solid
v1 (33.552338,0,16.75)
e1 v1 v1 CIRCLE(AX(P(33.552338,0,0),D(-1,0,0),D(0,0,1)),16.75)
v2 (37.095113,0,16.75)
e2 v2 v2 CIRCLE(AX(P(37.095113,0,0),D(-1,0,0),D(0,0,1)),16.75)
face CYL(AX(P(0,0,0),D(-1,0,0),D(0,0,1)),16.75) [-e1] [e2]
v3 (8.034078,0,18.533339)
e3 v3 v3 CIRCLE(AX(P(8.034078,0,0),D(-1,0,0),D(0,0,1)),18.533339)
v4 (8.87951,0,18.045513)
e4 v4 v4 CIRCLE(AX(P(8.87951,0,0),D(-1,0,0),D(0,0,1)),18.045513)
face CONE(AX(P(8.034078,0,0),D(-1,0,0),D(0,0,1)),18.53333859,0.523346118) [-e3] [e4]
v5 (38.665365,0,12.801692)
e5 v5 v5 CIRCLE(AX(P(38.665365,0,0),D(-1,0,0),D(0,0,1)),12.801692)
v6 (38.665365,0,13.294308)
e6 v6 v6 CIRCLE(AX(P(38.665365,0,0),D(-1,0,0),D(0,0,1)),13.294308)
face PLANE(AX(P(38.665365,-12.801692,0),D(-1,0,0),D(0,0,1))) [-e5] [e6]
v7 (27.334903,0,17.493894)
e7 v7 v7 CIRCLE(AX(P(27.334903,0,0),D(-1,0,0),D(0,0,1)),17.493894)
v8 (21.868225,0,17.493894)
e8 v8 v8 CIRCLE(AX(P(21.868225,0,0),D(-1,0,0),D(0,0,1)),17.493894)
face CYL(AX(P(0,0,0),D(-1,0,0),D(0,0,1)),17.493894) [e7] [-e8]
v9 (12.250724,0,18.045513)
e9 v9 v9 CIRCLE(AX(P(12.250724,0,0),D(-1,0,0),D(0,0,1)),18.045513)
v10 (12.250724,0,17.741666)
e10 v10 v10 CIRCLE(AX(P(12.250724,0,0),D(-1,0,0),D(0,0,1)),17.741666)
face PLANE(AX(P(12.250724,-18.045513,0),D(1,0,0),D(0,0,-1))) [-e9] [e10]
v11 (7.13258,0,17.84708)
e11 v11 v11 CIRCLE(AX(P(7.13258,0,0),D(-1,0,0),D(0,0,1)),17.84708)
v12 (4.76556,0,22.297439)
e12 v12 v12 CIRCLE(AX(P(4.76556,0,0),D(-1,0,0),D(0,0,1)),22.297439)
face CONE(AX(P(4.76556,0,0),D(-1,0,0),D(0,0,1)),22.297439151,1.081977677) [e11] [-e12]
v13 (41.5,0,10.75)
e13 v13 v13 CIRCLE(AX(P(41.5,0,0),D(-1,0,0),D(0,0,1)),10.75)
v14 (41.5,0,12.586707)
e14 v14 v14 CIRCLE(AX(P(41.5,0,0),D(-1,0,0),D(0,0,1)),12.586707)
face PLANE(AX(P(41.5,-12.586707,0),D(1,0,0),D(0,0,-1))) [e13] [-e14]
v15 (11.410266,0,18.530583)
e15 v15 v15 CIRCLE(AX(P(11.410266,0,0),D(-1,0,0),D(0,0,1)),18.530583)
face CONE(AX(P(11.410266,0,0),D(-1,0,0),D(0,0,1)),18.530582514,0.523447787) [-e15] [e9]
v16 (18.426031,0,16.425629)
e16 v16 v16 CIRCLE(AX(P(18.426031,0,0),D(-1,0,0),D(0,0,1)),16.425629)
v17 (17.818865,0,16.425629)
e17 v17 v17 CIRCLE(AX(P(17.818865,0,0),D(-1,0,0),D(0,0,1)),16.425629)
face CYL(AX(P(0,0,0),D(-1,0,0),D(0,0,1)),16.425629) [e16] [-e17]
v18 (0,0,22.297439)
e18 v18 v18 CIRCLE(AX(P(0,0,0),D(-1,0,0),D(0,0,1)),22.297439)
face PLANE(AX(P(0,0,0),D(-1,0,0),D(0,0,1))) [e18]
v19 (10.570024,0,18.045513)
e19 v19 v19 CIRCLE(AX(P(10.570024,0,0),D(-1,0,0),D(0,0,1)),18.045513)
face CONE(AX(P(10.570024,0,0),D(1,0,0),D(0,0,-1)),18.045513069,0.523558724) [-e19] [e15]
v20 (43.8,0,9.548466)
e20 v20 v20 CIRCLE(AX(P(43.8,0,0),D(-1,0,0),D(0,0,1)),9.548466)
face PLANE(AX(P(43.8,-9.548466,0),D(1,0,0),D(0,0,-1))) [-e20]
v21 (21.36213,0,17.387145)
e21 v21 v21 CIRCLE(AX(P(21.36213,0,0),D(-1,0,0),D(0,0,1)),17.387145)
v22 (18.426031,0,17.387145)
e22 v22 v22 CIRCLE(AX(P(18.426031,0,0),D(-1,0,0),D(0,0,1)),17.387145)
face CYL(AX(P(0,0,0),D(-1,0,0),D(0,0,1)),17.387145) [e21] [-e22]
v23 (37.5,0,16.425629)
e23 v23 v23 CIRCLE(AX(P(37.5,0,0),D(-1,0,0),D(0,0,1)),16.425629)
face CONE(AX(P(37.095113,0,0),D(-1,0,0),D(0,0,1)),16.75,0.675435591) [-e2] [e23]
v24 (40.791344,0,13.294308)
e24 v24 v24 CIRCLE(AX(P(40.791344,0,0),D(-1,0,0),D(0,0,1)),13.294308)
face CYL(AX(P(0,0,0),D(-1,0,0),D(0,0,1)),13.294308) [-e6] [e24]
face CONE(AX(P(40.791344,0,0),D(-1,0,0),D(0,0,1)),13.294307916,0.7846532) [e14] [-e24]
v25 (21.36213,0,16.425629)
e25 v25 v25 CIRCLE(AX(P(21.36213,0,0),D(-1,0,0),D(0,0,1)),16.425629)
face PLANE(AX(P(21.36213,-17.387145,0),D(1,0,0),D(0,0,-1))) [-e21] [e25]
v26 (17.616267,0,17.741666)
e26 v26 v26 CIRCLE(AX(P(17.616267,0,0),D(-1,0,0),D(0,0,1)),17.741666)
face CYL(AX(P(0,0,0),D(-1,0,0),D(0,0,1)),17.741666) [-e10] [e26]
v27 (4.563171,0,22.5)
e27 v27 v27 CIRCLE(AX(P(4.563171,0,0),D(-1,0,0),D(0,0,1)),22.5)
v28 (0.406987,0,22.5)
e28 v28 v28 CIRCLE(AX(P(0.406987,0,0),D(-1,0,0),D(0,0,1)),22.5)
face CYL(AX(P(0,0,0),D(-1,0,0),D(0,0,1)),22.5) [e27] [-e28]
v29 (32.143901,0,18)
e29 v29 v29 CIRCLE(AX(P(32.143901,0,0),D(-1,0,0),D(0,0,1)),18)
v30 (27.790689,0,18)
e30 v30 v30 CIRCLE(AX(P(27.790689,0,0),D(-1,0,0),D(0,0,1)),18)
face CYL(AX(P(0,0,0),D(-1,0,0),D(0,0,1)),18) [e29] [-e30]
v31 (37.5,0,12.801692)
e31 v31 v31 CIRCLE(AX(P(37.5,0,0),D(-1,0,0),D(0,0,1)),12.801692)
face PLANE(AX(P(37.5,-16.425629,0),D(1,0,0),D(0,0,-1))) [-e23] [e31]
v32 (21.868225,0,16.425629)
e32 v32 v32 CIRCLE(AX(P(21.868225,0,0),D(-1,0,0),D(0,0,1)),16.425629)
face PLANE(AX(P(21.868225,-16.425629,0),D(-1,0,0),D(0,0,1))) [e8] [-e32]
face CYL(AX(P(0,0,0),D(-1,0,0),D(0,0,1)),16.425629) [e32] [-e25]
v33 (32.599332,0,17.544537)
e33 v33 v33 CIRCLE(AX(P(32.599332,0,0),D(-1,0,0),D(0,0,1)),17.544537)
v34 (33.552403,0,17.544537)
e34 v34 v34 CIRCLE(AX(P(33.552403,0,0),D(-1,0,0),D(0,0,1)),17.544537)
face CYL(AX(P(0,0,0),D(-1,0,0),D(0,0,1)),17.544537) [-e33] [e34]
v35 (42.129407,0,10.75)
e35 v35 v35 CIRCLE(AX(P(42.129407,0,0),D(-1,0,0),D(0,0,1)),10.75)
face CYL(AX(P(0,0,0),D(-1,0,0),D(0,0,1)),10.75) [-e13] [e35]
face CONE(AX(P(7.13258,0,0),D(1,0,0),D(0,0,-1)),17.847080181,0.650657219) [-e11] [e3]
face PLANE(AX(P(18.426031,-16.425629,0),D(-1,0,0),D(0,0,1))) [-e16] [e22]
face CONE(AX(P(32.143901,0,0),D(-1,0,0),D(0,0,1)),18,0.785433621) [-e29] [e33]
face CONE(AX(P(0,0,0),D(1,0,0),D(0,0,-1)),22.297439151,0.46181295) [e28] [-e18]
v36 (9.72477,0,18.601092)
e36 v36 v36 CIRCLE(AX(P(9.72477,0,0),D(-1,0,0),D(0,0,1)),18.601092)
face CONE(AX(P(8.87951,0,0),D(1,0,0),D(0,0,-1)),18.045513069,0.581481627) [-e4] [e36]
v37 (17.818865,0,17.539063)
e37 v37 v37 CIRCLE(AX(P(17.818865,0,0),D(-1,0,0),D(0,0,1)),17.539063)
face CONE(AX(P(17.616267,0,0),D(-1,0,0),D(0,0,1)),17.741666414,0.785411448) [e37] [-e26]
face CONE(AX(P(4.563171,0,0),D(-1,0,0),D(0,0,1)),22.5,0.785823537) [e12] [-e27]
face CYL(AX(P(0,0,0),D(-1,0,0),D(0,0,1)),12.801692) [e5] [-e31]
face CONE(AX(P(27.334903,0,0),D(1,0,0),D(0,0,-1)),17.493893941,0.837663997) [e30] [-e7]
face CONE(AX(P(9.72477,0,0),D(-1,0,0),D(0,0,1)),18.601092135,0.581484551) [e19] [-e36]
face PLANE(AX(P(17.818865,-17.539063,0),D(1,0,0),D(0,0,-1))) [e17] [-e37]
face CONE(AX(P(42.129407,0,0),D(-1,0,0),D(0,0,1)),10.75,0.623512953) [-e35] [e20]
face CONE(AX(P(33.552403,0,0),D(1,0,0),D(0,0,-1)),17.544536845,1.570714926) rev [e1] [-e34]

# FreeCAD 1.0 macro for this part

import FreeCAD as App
import Part
import Sketcher
from FreeCAD import Vector

doc = App.newDocument("Part")
body = doc.addObject("PartDesign::Body", "Body")

sketch1 = body.newObject("Sketcher::SketchObject", "Sketch")
sketch1.AttachmentSupport = (doc.getObject("XY_Plane"), [""])
sketch1.MapMode = "FlatFace"
sketch1.addGeometry(Part.LineSegment(Vector(0, 0, 0), Vector(0, -22.3, 0)), False)
sketch1.addGeometry(Part.LineSegment(Vector(0, -22.3, 0), Vector(0.41, -22.5, 0)), False)
sketch1.addGeometry(Part.LineSegment(Vector(0.41, -22.5, 0), Vector(4.56, -22.5, 0)), False)
sketch1.addGeometry(Part.LineSegment(Vector(4.56, -22.5, 0), Vector(4.77, -22.3, 0)), False)
sketch1.addGeometry(Part.LineSegment(Vector(4.77, -22.3, 0), Vector(7.13, -17.85, 0)), False)
sketch1.addGeometry(Part.LineSegment(Vector(7.13, -17.85, 0), Vector(8.03, -18.53, 0)), False)
sketch1.addGeometry(Part.LineSegment(Vector(8.03, -18.53, 0), Vector(8.88, -18.05, 0)), False)
sketch1.addGeometry(Part.LineSegment(Vector(8.88, -18.05, 0), Vector(9.72, -18.6, 0)), False)
sketch1.addGeometry(Part.LineSegment(Vector(9.72, -18.6, 0), Vector(10.57, -18.05, 0)), False)
sketch1.addGeometry(Part.LineSegment(Vector(10.57, -18.05, 0), Vector(11.41, -18.53, 0)), False)
sketch1.addGeometry(Part.LineSegment(Vector(11.41, -18.53, 0), Vector(12.25, -18.05, 0)), False)
sketch1.addGeometry(Part.LineSegment(Vector(12.25, -18.05, 0), Vector(12.25, -17.74, 0)), False)
sketch1.addGeometry(Part.LineSegment(Vector(12.25, -17.74, 0), Vector(17.62, -17.74, 0)), False)
sketch1.addGeometry(Part.LineSegment(Vector(17.62, -17.74, 0), Vector(17.82, -17.54, 0)), False)
sketch1.addGeometry(Part.LineSegment(Vector(17.82, -17.54, 0), Vector(17.82, -16.43, 0)), False)
sketch1.addGeometry(Part.LineSegment(Vector(17.82, -16.43, 0), Vector(18.43, -16.43, 0)), False)
sketch1.addGeometry(Part.LineSegment(Vector(18.43, -16.43, 0), Vector(18.43, -17.39, 0)), False)
sketch1.addGeometry(Part.LineSegment(Vector(18.43, -17.39, 0), Vector(21.36, -17.39, 0)), False)
sketch1.addGeometry(Part.LineSegment(Vector(21.36, -17.39, 0), Vector(21.36, -16.43, 0)), False)
sketch1.addGeometry(Part.LineSegment(Vector(21.36, -16.43, 0), Vector(21.87, -16.43, 0)), False)
sketch1.addGeometry(Part.LineSegment(Vector(21.87, -16.43, 0), Vector(21.87, -17.49, 0)), False)
sketch1.addGeometry(Part.LineSegment(Vector(21.87, -17.49, 0), Vector(27.33, -17.49, 0)), False)
sketch1.addGeometry(Part.LineSegment(Vector(27.33, -17.49, 0), Vector(27.79, -18, 0)), False)
sketch1.addGeometry(Part.LineSegment(Vector(27.79, -18, 0), Vector(32.14, -18, 0)), False)
sketch1.addGeometry(Part.LineSegment(Vector(32.14, -18, 0), Vector(32.6, -17.54, 0)), False)
sketch1.addGeometry(Part.LineSegment(Vector(32.6, -17.54, 0), Vector(33.55, -17.54, 0)), False)
sketch1.addGeometry(Part.LineSegment(Vector(33.55, -17.54, 0), Vector(33.55, -16.75, 0)), False)
sketch1.addGeometry(Part.LineSegment(Vector(33.55, -16.75, 0), Vector(37.1, -16.75, 0)), False)
sketch1.addGeometry(Part.LineSegment(Vector(37.1, -16.75, 0), Vector(37.5, -16.43, 0)), False)
sketch1.addGeometry(Part.LineSegment(Vector(37.5, -16.43, 0), Vector(37.5, -12.8, 0)), False)
sketch1.addGeometry(Part.LineSegment(Vector(37.5, -12.8, 0), Vector(38.67, -12.8, 0)), False)
sketch1.addGeometry(Part.LineSegment(Vector(38.67, -12.8, 0), Vector(38.67, -13.29, 0)), False)
sketch1.addGeometry(Part.LineSegment(Vector(38.67, -13.29, 0), Vector(40.79, -13.29, 0)), False)
sketch1.addGeometry(Part.LineSegment(Vector(40.79, -13.29, 0), Vector(41.5, -12.59, 0)), False)
sketch1.addGeometry(Part.LineSegment(Vector(41.5, -12.59, 0), Vector(41.5, -10.75, 0)), False)
sketch1.addGeometry(Part.LineSegment(Vector(41.5, -10.75, 0), Vector(42.13, -10.75, 0)), False)
sketch1.addGeometry(Part.LineSegment(Vector(42.13, -10.75, 0), Vector(43.8, -9.55, 0)), False)
sketch1.addGeometry(Part.LineSegment(Vector(43.8, -9.55, 0), Vector(43.8, 0, 0)), False)
sketch1.addGeometry(Part.LineSegment(Vector(43.8, 0, 0), Vector(0, 0, 0)), False)
sketch1.addConstraint(Sketcher.Constraint("Coincident", 0, 2, 1, 1))
sketch1.addConstraint(Sketcher.Constraint("Coincident", 1, 2, 2, 1))
sketch1.addConstraint(Sketcher.Constraint("Coincident", 2, 2, 3, 1))
sketch1.addConstraint(Sketcher.Constraint("Coincident", 3, 2, 4, 1))
sketch1.addConstraint(Sketcher.Constraint("Coincident", 4, 2, 5, 1))
sketch1.addConstraint(Sketcher.Constraint("Coincident", 5, 2, 6, 1))
sketch1.addConstraint(Sketcher.Constraint("Coincident", 6, 2, 7, 1))
sketch1.addConstraint(Sketcher.Constraint("Coincident", 7, 2, 8, 1))
sketch1.addConstraint(Sketcher.Constraint("Coincident", 8, 2, 9, 1))
sketch1.addConstraint(Sketcher.Constraint("Coincident", 9, 2, 10, 1))
sketch1.addConstraint(Sketcher.Constraint("Coincident", 10, 2, 11, 1))
sketch1.addConstraint(Sketcher.Constraint("Coincident", 11, 2, 12, 1))
sketch1.addConstraint(Sketcher.Constraint("Coincident", 12, 2, 13, 1))
sketch1.addConstraint(Sketcher.Constraint("Coincident", 13, 2, 14, 1))
sketch1.addConstraint(Sketcher.Constraint("Coincident", 14, 2, 15, 1))
sketch1.addConstraint(Sketcher.Constraint("Coincident", 15, 2, 16, 1))
sketch1.addConstraint(Sketcher.Constraint("Coincident", 16, 2, 17, 1))
sketch1.addConstraint(Sketcher.Constraint("Coincident", 17, 2, 18, 1))
sketch1.addConstraint(Sketcher.Constraint("Coincident", 18, 2, 19, 1))
sketch1.addConstraint(Sketcher.Constraint("Coincident", 19, 2, 20, 1))
sketch1.addConstraint(Sketcher.Constraint("Coincident", 20, 2, 21, 1))
sketch1.addConstraint(Sketcher.Constraint("Coincident", 21, 2, 22, 1))
sketch1.addConstraint(Sketcher.Constraint("Coincident", 22, 2, 23, 1))
sketch1.addConstraint(Sketcher.Constraint("Coincident", 23, 2, 24, 1))
sketch1.addConstraint(Sketcher.Constraint("Coincident", 24, 2, 25, 1))
sketch1.addConstraint(Sketcher.Constraint("Coincident", 25, 2, 26, 1))
sketch1.addConstraint(Sketcher.Constraint("Coincident", 26, 2, 27, 1))
sketch1.addConstraint(Sketcher.Constraint("Coincident", 27, 2, 28, 1))
sketch1.addConstraint(Sketcher.Constraint("Coincident", 28, 2, 29, 1))
sketch1.addConstraint(Sketcher.Constraint("Coincident", 29, 2, 30, 1))
sketch1.addConstraint(Sketcher.Constraint("Coincident", 30, 2, 31, 1))
sketch1.addConstraint(Sketcher.Constraint("Coincident", 31, 2, 32, 1))
sketch1.addConstraint(Sketcher.Constraint("Coincident", 32, 2, 33, 1))
sketch1.addConstraint(Sketcher.Constraint("Coincident", 33, 2, 34, 1))
sketch1.addConstraint(Sketcher.Constraint("Coincident", 34, 2, 35, 1))
sketch1.addConstraint(Sketcher.Constraint("Coincident", 35, 2, 36, 1))
sketch1.addConstraint(Sketcher.Constraint("Coincident", 36, 2, 37, 1))
sketch1.addConstraint(Sketcher.Constraint("Coincident", 37, 2, 38, 1))
sketch1.addConstraint(Sketcher.Constraint("Coincident", 38, 2, 0, 1))
sketch1.addConstraint(Sketcher.Constraint("Vertical", 0))
sketch1.addConstraint(Sketcher.Constraint("Horizontal", 2))
sketch1.addConstraint(Sketcher.Constraint("Vertical", 11))
sketch1.addConstraint(Sketcher.Constraint("Horizontal", 12))
sketch1.addConstraint(Sketcher.Constraint("Vertical", 14))
sketch1.addConstraint(Sketcher.Constraint("Horizontal", 15))
sketch1.addConstraint(Sketcher.Constraint("Vertical", 16))
sketch1.addConstraint(Sketcher.Constraint("Horizontal", 17))
sketch1.addConstraint(Sketcher.Constraint("Vertical", 18))
sketch1.addConstraint(Sketcher.Constraint("Horizontal", 19))
sketch1.addConstraint(Sketcher.Constraint("Vertical", 20))
sketch1.addConstraint(Sketcher.Constraint("Horizontal", 21))
sketch1.addConstraint(Sketcher.Constraint("Horizontal", 23))
sketch1.addConstraint(Sketcher.Constraint("Horizontal", 25))
sketch1.addConstraint(Sketcher.Constraint("Horizontal", 27))
sketch1.addConstraint(Sketcher.Constraint("Vertical", 29))
sketch1.addConstraint(Sketcher.Constraint("Horizontal", 30))
sketch1.addConstraint(Sketcher.Constraint("Vertical", 31))
sketch1.addConstraint(Sketcher.Constraint("Horizontal", 32))
sketch1.addConstraint(Sketcher.Constraint("Vertical", 34))
sketch1.addConstraint(Sketcher.Constraint("Horizontal", 35))
sketch1.addConstraint(Sketcher.Constraint("Vertical", 37))
sketch1.addConstraint(Sketcher.Constraint("Horizontal", 38))
sketch1.addConstraint(Sketcher.Constraint("Coincident", 38, 2, -1, 1))
sketch1.addConstraint(Sketcher.Constraint("Horizontal", 0, 2, 3, 2))
sketch1.addConstraint(Sketcher.Constraint("Horizontal", 6, 2, 8, 2))
sketch1.addConstraint(Sketcher.Constraint("Horizontal", 8, 2, 10, 2))
sketch1.addConstraint(Sketcher.Constraint("Horizontal", 15, 2, 18, 2))
sketch1.addConstraint(Sketcher.Constraint("Horizontal", 19, 2, 28, 2))
sketch1.addConstraint(Sketcher.Constraint("DistanceX", 38, 2, 38, 1, 43.8))
sketch1.addConstraint(Sketcher.Constraint("DistanceY", 22, 2, -1, 1, 18.0))
sketch1.addConstraint(Sketcher.Constraint("DistanceX", 29, 2, 33, 2, 4.0))
sketch1.addConstraint(Sketcher.Constraint("DistanceY", 1, 2, -1, 1, 22.5))
sketch1.addConstraint(Sketcher.Constraint("DistanceX", -1, 1, 28, 2, 37.5))
sketch1.addConstraint(Sketcher.Constraint("DistanceY", 26, 2, -1, 1, 16.75))
sketch1.addConstraint(Sketcher.Constraint("DistanceY", 34, 2, -1, 1, 10.75))
sketch1.addConstraint(Sketcher.Constraint("DistanceX", 17, 1, 17, 2, 2.936099))
sketch1.addConstraint(Sketcher.Constraint("DistanceX", 9, 2, 12, 2, 6.206))
sketch1.addConstraint(Sketcher.Constraint("DistanceX", 21, 2, 23, 2, 4.808998))
sketch1.addConstraint(Sketcher.Constraint("Distance", 7, 1.0115))
sketch1.addConstraint(Sketcher.Constraint("Distance", 24, 0.644099))
sketch1.addConstraint(Sketcher.Constraint("DistanceX", 23, 1, 23, 2, 4.353212))
sketch1.addConstraint(Sketcher.Constraint("DistanceX", 25, 1, 25, 2, 0.953071))
sketch1.addConstraint(Sketcher.Constraint("DistanceX", 32, 1, 32, 2, 2.125979))
sketch1.addConstraint(Sketcher.Constraint("DistanceY", 0, 2, 0, 1, 22.297439))
sketch1.addConstraint(Sketcher.Constraint("DistanceX", -1, 1, 23, 2, 32.143901))
sketch1.addConstraint(Sketcher.Constraint("DistanceX", 4, 2, 5, 2, 0.901498))
sketch1.addConstraint(Sketcher.Constraint("DistanceY", 3, 2, 5, 2, 3.764101))
sketch1.addConstraint(Sketcher.Constraint("DistanceX", 2, 2, 7, 2, 5.161598))
sketch1.addConstraint(Sketcher.Constraint("DistanceX", 8, 2, 10, 2, 1.680701))
sketch1.addConstraint(Sketcher.Constraint("DistanceX", 12, 2, 13, 2, 0.202599))
sketch1.addConstraint(Sketcher.Constraint("DistanceX", 21, 2, 25, 2, 6.2175))
sketch1.addConstraint(Sketcher.Constraint("DistanceY", 32, 2, 33, 2, 0.707601))
sketch1.addConstraint(Sketcher.Constraint("Distance", 1, 0.454609))
sketch1.addConstraint(Sketcher.Constraint("Distance", 6, 0.976078))
sketch1.addConstraint(Sketcher.Constraint("Distance", 13, 0.286521))
sketch1.addConstraint(Sketcher.Constraint("Distance", 22, 0.681091))
sketch1.addConstraint(Sketcher.Constraint("DistanceX", 2, 1, 2, 2, 4.156185))
sketch1.addConstraint(Sketcher.Constraint("DistanceX", 12, 1, 12, 2, 5.365542))
sketch1.addConstraint(Sketcher.Constraint("DistanceX", 15, 1, 15, 2, 0.607166))
sketch1.addConstraint(Sketcher.Constraint("DistanceX", 19, 1, 19, 2, 0.506095))
sketch1.addConstraint(Sketcher.Constraint("DistanceX", 21, 1, 21, 2, 5.466678))
sketch1.addConstraint(Sketcher.Constraint("DistanceX", 27, 1, 27, 2, 3.542775))
sketch1.addConstraint(Sketcher.Constraint("DistanceX", 30, 1, 30, 2, 1.165365))
sketch1.addConstraint(Sketcher.Constraint("DistanceX", 35, 1, 35, 2, 0.629407))
sketch1.addConstraint(Sketcher.Constraint("DistanceY", 11, 1, 11, 2, 0.303847))
sketch1.addConstraint(Sketcher.Constraint("DistanceY", 14, 1, 14, 2, 1.113433))
sketch1.addConstraint(Sketcher.Constraint("DistanceY", 16, 2, 16, 1, 0.961515))
sketch1.addConstraint(Sketcher.Constraint("DistanceY", 20, 2, 20, 1, 1.068265))
sketch1.addConstraint(Sketcher.Constraint("DistanceY", 29, 1, 29, 2, 3.623938))
sketch1.addConstraint(Sketcher.Constraint("DistanceY", 31, 2, 31, 1, 0.492616))
sketch1.addConstraint(Sketcher.Constraint("DistanceY", 37, 1, 37, 2, 9.548466))
sketch1.addConstraint(Sketcher.Constraint("DistanceX", -1, 1, 3, 2, 4.76556))
sketch1.addConstraint(Sketcher.Constraint("DistanceX", -1, 1, 4, 2, 7.13258))
sketch1.addConstraint(Sketcher.Constraint("DistanceY", 4, 2, -1, 1, 17.84708))
sketch1.addConstraint(Sketcher.Constraint("DistanceX", -1, 1, 26, 2, 33.552338))
sketch1.addConstraint(Sketcher.Constraint("DistanceY", 9, 2, 8, 2, 0.485069))
revolution = body.newObject("PartDesign::Revolution", "Revolution")
revolution.Profile = sketch1
revolution.ReferenceAxis = (sketch1, ["H_Axis"])
revolution.Angle = 360

doc.recompute()
